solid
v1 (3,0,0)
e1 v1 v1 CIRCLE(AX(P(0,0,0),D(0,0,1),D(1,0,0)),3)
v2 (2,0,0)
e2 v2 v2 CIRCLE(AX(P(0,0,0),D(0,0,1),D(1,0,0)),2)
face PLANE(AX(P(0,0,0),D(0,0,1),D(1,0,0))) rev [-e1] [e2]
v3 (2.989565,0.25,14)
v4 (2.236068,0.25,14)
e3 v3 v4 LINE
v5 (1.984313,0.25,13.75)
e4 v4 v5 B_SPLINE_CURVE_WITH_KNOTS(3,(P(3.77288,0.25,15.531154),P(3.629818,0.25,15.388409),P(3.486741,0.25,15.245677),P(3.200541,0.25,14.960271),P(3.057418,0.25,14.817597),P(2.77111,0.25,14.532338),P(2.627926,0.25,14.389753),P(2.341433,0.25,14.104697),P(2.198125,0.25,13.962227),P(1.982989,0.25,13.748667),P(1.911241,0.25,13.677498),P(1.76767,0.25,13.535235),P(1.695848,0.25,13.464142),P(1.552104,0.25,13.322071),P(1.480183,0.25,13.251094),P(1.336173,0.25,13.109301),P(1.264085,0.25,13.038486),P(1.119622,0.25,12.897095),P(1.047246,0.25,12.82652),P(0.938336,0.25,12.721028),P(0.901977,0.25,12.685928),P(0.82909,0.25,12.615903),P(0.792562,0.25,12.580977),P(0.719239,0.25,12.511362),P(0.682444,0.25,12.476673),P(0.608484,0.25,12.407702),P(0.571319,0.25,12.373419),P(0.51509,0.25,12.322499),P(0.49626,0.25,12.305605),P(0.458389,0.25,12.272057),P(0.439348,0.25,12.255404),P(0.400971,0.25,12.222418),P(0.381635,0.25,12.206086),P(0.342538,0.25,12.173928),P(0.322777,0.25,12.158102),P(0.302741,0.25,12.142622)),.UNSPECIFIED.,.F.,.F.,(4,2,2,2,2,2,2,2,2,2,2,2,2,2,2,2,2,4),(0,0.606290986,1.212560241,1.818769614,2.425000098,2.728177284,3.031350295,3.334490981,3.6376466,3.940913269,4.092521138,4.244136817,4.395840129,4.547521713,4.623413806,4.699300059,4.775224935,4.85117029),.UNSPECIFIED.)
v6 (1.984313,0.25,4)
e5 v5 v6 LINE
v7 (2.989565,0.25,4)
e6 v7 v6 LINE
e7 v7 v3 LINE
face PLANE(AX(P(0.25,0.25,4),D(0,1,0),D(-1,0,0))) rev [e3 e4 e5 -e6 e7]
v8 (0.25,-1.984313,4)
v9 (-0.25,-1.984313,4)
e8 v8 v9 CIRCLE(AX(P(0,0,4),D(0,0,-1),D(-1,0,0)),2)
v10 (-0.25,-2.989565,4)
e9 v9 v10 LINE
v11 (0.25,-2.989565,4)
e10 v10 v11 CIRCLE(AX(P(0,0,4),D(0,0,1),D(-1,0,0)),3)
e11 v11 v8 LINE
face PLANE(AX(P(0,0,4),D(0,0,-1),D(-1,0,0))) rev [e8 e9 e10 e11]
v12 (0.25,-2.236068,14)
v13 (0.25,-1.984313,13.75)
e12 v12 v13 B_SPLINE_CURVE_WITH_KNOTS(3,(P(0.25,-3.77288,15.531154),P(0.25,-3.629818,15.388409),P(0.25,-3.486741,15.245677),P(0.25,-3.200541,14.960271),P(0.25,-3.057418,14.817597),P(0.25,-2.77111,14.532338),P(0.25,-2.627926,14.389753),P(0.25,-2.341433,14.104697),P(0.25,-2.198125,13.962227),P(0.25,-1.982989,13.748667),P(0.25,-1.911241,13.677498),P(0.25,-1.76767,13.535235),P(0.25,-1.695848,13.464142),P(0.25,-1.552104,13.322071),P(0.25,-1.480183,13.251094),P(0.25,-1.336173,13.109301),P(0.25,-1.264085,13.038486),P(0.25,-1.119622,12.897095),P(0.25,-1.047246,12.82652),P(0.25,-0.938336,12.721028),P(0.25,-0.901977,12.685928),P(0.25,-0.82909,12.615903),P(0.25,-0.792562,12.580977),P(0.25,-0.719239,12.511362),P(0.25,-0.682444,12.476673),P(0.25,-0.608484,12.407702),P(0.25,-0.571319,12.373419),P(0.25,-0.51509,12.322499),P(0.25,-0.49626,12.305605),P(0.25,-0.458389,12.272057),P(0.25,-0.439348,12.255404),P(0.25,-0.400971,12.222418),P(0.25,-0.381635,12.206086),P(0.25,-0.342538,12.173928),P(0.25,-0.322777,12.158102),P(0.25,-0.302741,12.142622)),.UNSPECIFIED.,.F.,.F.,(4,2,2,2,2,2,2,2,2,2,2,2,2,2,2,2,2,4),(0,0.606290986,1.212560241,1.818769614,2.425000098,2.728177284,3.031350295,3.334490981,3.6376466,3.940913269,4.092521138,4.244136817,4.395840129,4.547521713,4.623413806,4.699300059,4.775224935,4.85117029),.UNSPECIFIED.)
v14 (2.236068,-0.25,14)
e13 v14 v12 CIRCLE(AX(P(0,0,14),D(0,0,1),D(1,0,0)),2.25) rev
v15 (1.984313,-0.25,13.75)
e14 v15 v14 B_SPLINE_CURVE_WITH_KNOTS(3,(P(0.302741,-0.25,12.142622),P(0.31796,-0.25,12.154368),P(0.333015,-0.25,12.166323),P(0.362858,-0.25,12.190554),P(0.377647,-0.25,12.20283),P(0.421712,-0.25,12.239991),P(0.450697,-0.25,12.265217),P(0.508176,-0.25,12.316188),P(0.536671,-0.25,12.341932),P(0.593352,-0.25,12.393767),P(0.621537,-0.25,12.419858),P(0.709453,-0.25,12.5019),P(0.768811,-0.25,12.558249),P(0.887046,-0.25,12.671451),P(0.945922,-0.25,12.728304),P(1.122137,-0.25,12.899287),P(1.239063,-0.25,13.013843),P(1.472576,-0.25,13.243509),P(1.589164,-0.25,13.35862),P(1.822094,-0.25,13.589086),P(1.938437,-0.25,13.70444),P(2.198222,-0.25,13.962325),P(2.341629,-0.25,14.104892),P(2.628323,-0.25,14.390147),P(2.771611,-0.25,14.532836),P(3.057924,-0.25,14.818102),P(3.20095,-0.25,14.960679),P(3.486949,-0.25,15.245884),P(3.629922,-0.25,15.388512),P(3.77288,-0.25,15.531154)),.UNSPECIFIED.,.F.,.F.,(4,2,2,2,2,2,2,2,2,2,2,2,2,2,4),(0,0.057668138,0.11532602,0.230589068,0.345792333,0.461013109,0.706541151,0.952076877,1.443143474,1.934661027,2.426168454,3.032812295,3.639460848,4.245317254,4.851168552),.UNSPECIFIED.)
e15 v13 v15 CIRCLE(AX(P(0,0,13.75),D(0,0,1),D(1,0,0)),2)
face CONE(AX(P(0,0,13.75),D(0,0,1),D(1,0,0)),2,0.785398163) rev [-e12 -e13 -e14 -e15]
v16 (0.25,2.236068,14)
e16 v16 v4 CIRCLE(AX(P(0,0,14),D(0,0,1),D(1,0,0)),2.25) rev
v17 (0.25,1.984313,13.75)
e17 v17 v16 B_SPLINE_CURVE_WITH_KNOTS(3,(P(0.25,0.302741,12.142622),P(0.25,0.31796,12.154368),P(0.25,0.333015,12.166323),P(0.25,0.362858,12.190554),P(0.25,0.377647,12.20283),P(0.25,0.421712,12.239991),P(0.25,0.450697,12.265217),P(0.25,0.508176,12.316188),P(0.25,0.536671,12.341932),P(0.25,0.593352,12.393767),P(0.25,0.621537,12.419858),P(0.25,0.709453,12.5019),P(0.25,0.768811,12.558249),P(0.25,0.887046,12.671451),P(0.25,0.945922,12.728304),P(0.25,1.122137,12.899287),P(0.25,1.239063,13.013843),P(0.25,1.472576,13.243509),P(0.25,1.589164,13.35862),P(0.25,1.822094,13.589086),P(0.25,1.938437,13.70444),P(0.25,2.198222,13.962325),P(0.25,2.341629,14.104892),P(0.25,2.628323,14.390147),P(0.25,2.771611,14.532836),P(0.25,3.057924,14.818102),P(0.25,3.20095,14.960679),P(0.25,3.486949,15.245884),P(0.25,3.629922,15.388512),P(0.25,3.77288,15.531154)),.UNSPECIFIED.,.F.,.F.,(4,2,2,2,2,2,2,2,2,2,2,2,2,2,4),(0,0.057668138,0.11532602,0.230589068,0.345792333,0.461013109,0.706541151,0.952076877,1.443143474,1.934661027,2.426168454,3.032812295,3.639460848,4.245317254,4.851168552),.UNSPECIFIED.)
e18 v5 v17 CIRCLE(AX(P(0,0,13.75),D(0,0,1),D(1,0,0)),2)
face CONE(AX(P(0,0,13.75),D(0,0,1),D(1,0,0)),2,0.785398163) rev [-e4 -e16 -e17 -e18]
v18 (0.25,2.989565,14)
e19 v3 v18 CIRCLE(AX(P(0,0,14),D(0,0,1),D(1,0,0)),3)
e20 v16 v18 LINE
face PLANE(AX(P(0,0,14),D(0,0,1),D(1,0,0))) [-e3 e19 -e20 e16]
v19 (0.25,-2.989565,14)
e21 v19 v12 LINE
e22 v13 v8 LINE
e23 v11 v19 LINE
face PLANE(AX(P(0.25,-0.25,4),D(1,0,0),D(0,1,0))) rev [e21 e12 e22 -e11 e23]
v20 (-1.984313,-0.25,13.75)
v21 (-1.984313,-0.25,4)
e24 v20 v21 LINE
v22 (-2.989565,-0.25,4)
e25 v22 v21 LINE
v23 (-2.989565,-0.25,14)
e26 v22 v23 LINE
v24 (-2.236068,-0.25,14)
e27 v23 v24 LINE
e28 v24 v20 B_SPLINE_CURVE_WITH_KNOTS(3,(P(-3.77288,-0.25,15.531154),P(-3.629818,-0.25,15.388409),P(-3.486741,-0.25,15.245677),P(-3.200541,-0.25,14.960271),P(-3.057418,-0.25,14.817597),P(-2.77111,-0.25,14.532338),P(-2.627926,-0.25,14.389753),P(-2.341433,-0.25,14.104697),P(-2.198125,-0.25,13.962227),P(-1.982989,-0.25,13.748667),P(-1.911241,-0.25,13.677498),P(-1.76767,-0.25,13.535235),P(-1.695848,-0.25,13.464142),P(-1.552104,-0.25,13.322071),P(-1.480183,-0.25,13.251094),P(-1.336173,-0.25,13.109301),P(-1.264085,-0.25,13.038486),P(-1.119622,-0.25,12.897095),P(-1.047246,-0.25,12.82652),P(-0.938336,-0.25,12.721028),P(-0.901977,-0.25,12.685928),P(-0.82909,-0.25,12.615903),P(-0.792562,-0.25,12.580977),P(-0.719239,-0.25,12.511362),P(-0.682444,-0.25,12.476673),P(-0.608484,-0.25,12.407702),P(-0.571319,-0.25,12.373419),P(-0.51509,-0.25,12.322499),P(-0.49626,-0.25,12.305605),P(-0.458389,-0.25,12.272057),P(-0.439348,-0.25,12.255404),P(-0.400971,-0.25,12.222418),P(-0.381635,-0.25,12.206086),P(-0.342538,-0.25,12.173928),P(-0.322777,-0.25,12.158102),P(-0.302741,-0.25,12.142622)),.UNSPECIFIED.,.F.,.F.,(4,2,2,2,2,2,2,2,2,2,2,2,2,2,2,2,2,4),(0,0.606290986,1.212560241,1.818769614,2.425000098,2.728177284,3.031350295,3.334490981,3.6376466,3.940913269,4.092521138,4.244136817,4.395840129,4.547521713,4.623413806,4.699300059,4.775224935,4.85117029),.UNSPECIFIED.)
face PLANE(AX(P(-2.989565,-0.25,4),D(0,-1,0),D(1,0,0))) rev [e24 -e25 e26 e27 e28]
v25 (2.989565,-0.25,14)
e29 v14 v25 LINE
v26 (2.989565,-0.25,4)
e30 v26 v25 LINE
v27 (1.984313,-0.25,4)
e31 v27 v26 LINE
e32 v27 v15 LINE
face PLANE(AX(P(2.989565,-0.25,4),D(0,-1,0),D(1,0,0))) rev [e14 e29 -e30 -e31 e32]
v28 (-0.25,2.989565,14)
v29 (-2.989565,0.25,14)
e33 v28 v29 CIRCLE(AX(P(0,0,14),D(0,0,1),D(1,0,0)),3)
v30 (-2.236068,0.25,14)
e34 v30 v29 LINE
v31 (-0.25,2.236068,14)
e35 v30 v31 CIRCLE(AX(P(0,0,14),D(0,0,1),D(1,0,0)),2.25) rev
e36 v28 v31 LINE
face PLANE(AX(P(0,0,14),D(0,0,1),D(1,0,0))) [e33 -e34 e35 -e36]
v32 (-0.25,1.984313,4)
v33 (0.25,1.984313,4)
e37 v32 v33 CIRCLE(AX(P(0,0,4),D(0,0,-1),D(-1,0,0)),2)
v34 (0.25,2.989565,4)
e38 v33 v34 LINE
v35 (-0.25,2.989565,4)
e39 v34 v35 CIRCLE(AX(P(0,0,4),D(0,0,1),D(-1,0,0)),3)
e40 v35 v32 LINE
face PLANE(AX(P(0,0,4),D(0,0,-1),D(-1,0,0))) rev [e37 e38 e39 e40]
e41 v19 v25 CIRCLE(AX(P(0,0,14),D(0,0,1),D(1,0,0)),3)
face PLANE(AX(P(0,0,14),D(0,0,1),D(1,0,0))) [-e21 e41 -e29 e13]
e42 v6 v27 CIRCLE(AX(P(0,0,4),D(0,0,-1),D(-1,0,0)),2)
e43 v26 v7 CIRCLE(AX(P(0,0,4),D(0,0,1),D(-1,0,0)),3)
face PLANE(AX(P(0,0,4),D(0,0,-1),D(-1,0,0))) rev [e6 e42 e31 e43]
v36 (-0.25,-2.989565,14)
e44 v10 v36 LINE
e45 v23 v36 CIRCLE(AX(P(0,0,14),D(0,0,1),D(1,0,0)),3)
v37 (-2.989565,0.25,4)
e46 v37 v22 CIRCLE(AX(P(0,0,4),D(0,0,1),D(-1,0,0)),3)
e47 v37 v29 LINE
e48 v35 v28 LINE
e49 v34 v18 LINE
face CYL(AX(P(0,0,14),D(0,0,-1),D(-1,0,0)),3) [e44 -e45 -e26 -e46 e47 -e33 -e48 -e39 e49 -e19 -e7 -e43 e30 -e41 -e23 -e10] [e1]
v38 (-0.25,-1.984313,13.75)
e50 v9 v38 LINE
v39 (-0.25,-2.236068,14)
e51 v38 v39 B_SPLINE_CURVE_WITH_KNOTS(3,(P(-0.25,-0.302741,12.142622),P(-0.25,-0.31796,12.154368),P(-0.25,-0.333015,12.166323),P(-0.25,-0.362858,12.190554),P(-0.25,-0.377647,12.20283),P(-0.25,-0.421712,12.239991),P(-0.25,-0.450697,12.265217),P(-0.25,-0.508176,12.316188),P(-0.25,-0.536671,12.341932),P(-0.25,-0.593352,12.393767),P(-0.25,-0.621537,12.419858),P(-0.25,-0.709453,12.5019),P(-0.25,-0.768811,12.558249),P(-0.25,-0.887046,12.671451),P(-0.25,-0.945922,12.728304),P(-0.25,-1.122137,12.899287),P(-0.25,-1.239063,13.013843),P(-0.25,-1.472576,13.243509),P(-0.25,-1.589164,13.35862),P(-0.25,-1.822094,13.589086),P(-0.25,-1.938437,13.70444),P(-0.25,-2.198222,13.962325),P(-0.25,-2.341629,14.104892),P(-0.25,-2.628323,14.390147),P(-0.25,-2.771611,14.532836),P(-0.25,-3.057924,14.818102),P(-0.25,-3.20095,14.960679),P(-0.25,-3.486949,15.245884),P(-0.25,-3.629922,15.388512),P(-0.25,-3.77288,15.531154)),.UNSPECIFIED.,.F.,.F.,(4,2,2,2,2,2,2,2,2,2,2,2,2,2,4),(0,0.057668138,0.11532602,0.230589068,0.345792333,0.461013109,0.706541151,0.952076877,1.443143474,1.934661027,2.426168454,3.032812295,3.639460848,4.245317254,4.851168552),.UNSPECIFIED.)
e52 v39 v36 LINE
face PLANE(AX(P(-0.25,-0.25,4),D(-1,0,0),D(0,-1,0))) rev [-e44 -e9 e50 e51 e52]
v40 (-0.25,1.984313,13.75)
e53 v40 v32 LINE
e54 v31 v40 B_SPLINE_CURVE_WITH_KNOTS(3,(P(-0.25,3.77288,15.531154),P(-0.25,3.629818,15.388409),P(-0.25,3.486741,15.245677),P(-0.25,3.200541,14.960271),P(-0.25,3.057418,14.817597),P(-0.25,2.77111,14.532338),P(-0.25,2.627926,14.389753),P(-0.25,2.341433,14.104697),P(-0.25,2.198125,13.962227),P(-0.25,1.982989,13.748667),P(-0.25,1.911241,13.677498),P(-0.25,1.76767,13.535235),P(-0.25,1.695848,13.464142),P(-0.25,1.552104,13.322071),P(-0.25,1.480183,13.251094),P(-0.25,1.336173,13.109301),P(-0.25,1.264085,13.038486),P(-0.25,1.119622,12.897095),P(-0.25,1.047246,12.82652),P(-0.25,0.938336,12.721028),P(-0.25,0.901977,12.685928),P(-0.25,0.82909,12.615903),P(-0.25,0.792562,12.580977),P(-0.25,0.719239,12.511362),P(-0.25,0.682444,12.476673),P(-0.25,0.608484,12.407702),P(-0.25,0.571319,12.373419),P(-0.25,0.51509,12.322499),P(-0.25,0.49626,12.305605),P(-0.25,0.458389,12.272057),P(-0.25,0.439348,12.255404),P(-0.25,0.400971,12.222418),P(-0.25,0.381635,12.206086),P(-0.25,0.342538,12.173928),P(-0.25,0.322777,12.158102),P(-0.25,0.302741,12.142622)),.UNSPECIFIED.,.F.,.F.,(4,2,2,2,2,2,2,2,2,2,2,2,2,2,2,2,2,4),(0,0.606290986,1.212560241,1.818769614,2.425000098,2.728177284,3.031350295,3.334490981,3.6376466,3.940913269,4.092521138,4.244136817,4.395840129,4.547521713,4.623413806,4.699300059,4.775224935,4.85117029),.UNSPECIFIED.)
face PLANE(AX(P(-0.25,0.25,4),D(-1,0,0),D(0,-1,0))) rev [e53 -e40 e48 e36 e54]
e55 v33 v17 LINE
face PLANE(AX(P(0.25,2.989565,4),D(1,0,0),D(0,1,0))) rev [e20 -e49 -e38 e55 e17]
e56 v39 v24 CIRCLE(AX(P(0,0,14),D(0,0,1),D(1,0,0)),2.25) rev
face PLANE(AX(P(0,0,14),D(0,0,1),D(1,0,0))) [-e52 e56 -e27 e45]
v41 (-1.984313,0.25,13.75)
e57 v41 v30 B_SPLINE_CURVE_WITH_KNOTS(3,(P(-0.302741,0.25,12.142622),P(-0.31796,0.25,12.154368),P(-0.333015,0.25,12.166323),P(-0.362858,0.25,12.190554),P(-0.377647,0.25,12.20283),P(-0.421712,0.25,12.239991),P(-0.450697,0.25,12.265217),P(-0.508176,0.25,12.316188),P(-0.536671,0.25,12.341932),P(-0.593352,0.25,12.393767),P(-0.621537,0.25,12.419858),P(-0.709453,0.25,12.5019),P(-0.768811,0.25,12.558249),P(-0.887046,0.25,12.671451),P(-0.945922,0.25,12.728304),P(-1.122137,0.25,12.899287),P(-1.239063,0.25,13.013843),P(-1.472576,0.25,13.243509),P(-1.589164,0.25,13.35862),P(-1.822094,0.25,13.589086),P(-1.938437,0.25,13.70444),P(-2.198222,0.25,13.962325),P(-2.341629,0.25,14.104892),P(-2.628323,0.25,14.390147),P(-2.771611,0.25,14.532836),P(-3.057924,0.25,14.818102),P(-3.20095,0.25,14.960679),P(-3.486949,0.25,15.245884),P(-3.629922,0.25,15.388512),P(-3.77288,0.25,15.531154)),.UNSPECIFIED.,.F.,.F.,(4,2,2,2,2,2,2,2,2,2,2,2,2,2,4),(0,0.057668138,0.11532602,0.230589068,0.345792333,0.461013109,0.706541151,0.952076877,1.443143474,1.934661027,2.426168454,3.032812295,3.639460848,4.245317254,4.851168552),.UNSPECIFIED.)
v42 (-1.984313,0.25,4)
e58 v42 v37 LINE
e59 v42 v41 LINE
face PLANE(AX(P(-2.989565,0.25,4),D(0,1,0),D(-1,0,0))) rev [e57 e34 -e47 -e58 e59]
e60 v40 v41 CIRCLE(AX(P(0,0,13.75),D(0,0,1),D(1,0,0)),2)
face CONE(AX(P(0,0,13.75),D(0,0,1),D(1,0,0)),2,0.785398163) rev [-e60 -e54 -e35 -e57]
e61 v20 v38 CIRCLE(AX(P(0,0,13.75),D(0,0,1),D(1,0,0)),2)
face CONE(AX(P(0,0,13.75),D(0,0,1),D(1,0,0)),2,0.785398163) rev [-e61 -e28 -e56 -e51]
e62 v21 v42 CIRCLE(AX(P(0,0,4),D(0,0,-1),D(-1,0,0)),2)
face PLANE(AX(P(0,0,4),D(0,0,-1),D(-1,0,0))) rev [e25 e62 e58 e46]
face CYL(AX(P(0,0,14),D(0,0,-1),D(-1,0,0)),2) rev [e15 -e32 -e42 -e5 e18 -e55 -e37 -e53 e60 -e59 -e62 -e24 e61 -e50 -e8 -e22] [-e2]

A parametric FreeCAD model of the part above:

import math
import FreeCAD as App
import Part
import Sketcher
from FreeCAD import Vector


def edges_at(feature, points):
    """Names of the edges that pass closest to the given points."""
    edges = feature.Shape.Edges
    near = lambda p: min(range(len(edges)), key=lambda i: edges[i].distToShape(Part.Vertex(*p))[0])
    return sorted({f"Edge{near(p) + 1}" for p in points})

doc = App.newDocument("Part")
body = doc.addObject("PartDesign::Body", "Body")

sketch1 = body.newObject("Sketcher::SketchObject", "Sketch")
sketch1.AttachmentSupport = (doc.getObject("XY_Plane"), [""])
sketch1.MapMode = "FlatFace"
sketch1.addGeometry([
    Part.Circle(Vector(0, 0, 0), Vector(0, 0, 1), 3),
    Part.Circle(Vector(0, 0, 0), Vector(0, 0, 1), 2),
], False)
sketch1.addConstraint([
    Sketcher.Constraint("Coincident", 0, 3, -1, 1),
    Sketcher.Constraint("Coincident", 1, 3, -1, 1),
    Sketcher.Constraint("Diameter", 0, 6.0),
    Sketcher.Constraint("Diameter", 1, 4.0),
])
pad1 = body.newObject("PartDesign::Pad", "Pad")
pad1.Profile = sketch1
pad1.Length = 14
doc.recompute()

chamfer = body.newObject("PartDesign::Chamfer", "Chamfer")
chamfer.Base = (pad1, edges_at(pad1, [(-2, 0, 14)]))
chamfer.Size = 0.25

sketch2 = body.newObject("Sketcher::SketchObject", "Sketch001")
sketch2.AttachmentSupport = (doc.getObject("XY_Plane"), [""])
sketch2.MapMode = "FlatFace"
sketch2.AttachmentOffset = App.Placement(Vector(0, 0, 14), App.Rotation())
sketch2.addGeometry([
    Part.LineSegment(Vector(0.2, 0.2, 0), Vector(0.2, 3, 0)),
    Part.ArcOfCircle(Part.Circle(Vector(0, 0, 0), Vector(0, 0, 1), 3), math.radians(85.22), math.radians(94.78)),
    Part.LineSegment(Vector(-0.2, 3, 0), Vector(-0.2, 0.2, 0)),
    Part.LineSegment(Vector(-0.2, 0.2, 0), Vector(-3, 0.2, 0)),
    Part.ArcOfCircle(Part.Circle(Vector(0, 0, 0), Vector(0, 0, 1), 3), math.radians(175.22), math.radians(184.78)),
    Part.LineSegment(Vector(-3, -0.2, 0), Vector(-0.2, -0.2, 0)),
    Part.LineSegment(Vector(-0.2, -0.2, 0), Vector(-0.2, -3, 0)),
    Part.ArcOfCircle(Part.Circle(Vector(0, 0, 0), Vector(0, 0, 1), 3), math.radians(-94.78), math.radians(-85.22)),
    Part.LineSegment(Vector(0.2, -3, 0), Vector(0.2, -0.2, 0)),
    Part.LineSegment(Vector(0.2, -0.2, 0), Vector(3, -0.2, 0)),
    Part.ArcOfCircle(Part.Circle(Vector(0, 0, 0), Vector(0, 0, 1), 3), math.radians(-4.78), math.radians(4.78)),
    Part.LineSegment(Vector(3, 0.2, 0), Vector(0.2, 0.2, 0)),
], False)
sketch2.addConstraint([
    Sketcher.Constraint("Coincident", 0, 2, 1, 1),
    Sketcher.Constraint("Coincident", 1, 2, 2, 1),
    Sketcher.Constraint("Coincident", 2, 2, 3, 1),
    Sketcher.Constraint("Coincident", 3, 2, 4, 1),
    Sketcher.Constraint("Coincident", 4, 2, 5, 1),
    Sketcher.Constraint("Coincident", 5, 2, 6, 1),
    Sketcher.Constraint("Coincident", 6, 2, 7, 1),
    Sketcher.Constraint("Coincident", 7, 2, 8, 1),
    Sketcher.Constraint("Coincident", 8, 2, 9, 1),
    Sketcher.Constraint("Coincident", 9, 2, 10, 1),
    Sketcher.Constraint("Coincident", 10, 2, 11, 1),
    Sketcher.Constraint("Coincident", 11, 2, 0, 1),
    Sketcher.Constraint("Vertical", 0),
    Sketcher.Constraint("Vertical", 2),
    Sketcher.Constraint("Horizontal", 3),
    Sketcher.Constraint("Horizontal", 5),
    Sketcher.Constraint("Vertical", 6),
    Sketcher.Constraint("Vertical", 8),
    Sketcher.Constraint("Horizontal", 9),
    Sketcher.Constraint("Horizontal", 11),
    Sketcher.Constraint("Coincident", 1, 3, -1, 1),
    Sketcher.Constraint("Coincident", 4, 3, -1, 1),
    Sketcher.Constraint("Coincident", 7, 3, -1, 1),
    Sketcher.Constraint("Coincident", 10, 3, -1, 1),
    Sketcher.Constraint("Equal", 1, 4),
    Sketcher.Constraint("Equal", 4, 7),
    Sketcher.Constraint("Equal", 7, 10),
    Sketcher.Constraint("Symmetric", 2, 2, 8, 2, -1, 1),
    Sketcher.Constraint("Symmetric", 5, 2, 11, 2, -1, 1),
    Sketcher.Constraint("Symmetric", 5, 2, 8, 2, -2),
    Sketcher.Constraint("Equal", 11, 0),
    Sketcher.Constraint("Radius", 1, 3.0),
    Sketcher.Constraint("DistanceX", 1, 2, 0, 2, 0.5),
])
pocket1 = body.newObject("PartDesign::Pocket", "Pocket")
pocket1.Profile = sketch2
pocket1.Length = 10

doc.recompute()
